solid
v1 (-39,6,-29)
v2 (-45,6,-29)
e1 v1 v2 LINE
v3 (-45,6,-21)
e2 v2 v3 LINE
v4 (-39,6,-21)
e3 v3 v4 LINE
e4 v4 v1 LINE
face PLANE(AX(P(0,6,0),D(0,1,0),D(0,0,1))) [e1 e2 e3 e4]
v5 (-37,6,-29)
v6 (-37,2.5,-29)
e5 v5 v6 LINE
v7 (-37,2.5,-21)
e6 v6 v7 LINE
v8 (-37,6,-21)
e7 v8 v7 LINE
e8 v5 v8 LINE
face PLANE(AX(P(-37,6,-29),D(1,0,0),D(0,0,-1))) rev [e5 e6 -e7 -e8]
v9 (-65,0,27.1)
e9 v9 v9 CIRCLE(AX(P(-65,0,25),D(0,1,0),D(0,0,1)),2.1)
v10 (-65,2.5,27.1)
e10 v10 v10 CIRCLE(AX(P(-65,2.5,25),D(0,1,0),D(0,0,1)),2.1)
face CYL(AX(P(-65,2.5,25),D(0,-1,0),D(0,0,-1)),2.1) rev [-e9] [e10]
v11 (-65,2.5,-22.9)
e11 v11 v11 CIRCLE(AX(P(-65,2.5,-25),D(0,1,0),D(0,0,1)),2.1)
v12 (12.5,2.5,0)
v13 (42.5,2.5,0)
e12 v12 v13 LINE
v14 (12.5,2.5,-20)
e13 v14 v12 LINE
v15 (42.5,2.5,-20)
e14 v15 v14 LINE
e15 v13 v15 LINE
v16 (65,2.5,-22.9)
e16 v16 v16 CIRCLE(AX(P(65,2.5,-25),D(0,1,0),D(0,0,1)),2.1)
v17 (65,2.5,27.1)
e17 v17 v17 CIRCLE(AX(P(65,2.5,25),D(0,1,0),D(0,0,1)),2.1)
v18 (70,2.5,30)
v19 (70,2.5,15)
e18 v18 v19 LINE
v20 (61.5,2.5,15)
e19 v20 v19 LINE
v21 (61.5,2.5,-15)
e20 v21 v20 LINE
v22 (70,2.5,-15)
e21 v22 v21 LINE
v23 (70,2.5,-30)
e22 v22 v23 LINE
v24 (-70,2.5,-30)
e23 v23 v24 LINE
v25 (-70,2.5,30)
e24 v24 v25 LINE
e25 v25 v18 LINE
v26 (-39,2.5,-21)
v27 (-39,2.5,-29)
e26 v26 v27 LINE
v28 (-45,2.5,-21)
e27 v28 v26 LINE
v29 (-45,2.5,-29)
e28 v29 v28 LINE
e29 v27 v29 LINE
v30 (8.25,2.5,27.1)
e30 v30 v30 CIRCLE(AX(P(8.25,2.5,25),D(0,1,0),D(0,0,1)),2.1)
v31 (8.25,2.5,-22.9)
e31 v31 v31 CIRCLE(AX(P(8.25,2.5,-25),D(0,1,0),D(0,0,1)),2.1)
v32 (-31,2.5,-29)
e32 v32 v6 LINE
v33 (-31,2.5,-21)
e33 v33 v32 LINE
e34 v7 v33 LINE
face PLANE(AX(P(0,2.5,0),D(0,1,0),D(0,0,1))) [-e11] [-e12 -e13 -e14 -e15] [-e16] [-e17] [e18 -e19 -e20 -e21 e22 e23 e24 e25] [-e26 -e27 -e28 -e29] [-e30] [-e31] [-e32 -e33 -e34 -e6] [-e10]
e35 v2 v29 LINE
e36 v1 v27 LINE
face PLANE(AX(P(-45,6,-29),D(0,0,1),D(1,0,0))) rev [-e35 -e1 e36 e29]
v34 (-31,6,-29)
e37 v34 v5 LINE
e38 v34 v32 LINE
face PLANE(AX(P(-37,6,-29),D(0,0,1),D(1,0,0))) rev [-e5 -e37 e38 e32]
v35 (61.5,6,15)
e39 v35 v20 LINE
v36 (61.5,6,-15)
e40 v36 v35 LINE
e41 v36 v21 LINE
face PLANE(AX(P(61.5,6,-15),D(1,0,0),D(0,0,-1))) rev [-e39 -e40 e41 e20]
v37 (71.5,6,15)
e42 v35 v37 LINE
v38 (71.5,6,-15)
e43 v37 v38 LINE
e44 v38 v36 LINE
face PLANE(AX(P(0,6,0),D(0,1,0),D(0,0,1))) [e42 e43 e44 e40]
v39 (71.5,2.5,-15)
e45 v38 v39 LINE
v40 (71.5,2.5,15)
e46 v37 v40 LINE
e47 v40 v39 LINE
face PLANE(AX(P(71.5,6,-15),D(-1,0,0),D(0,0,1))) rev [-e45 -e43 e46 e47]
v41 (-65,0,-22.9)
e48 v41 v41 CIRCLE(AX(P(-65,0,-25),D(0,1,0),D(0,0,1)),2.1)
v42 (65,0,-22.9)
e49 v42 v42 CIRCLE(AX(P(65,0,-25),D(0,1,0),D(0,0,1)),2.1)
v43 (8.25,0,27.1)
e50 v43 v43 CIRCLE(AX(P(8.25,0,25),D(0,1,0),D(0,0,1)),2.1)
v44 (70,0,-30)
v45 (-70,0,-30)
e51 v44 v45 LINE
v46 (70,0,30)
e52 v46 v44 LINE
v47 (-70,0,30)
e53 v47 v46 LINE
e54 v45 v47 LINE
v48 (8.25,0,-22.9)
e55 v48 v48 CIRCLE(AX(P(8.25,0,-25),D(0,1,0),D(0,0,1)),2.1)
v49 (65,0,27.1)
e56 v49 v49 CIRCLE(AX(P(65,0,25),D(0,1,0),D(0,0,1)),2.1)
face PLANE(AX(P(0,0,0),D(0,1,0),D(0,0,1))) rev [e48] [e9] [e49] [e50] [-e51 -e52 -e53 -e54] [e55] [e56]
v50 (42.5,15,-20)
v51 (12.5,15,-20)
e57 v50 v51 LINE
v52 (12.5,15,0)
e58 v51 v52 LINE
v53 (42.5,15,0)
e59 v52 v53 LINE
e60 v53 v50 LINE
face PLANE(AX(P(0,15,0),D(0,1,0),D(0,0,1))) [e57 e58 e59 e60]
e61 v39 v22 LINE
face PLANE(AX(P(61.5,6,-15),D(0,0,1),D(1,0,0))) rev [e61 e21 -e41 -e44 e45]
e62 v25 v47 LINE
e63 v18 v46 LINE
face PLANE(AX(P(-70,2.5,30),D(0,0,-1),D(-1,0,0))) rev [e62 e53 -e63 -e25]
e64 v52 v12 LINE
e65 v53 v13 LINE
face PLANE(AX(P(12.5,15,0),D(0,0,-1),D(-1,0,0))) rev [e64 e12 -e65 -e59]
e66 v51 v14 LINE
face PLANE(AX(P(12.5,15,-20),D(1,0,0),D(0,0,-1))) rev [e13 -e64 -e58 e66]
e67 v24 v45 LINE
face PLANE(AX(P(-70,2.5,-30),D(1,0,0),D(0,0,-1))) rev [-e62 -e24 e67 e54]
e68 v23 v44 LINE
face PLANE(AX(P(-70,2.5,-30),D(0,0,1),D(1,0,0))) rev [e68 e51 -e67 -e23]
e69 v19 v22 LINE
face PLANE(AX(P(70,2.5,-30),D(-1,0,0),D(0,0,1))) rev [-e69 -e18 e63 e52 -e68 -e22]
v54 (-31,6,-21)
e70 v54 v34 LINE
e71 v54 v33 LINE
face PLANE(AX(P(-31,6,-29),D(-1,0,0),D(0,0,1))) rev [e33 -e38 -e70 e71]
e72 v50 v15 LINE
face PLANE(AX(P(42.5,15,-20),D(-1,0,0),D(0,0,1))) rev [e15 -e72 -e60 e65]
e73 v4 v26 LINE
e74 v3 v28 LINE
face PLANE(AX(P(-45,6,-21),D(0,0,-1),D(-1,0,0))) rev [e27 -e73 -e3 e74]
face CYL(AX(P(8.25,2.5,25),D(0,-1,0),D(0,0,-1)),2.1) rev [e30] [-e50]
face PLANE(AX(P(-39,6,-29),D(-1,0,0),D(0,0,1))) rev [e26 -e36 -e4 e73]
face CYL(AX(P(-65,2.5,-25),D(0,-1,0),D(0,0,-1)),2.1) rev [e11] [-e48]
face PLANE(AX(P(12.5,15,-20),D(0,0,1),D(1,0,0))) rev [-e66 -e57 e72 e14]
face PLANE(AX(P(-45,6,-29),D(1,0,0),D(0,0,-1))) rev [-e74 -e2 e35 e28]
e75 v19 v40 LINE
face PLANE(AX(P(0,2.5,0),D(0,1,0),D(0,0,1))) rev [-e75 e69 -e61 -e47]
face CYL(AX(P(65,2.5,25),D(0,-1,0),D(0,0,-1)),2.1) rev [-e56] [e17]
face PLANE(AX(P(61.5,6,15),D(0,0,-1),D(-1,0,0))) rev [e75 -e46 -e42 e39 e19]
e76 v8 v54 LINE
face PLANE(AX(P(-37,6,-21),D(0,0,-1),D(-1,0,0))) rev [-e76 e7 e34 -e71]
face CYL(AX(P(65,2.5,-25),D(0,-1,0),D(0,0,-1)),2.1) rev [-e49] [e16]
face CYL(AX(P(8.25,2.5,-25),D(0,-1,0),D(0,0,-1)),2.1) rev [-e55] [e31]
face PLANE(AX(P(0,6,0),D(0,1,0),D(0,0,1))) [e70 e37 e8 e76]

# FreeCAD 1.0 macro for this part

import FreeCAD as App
import Part
import Sketcher
from FreeCAD import Vector
Q = App.Units.Quantity

doc = App.newDocument("Part")
body = doc.addObject("PartDesign::Body", "Body")

sketch1 = body.newObject("Sketcher::SketchObject", "Sketch")
sketch1.AttachmentSupport = (doc.getObject("XZ_Plane"), [""])
sketch1.MapMode = "FlatFace"
sketch1.addGeometry(Part.LineSegment(Vector(-70, -30, 0), Vector(-70, 30, 0)), False)
sketch1.addGeometry(Part.LineSegment(Vector(-70, 30, 0), Vector(70, 30, 0)), False)
sketch1.addGeometry(Part.LineSegment(Vector(70, 30, 0), Vector(70, -30, 0)), False)
sketch1.addGeometry(Part.LineSegment(Vector(70, -30, 0), Vector(-70, -30, 0)), False)
sketch1.addGeometry(Part.Circle(Vector(-65, 25, 0), Vector(0, 0, 1), 2.1), False)
sketch1.addGeometry(Part.Circle(Vector(8.25, 25, 0), Vector(0, 0, 1), 2.1), False)
sketch1.addGeometry(Part.Circle(Vector(65, 25, 0), Vector(0, 0, 1), 2.1), False)
sketch1.addGeometry(Part.Circle(Vector(-65, -25, 0), Vector(0, 0, 1), 2.1), False)
sketch1.addGeometry(Part.Circle(Vector(8.25, -25, 0), Vector(0, 0, 1), 2.1), False)
sketch1.addGeometry(Part.Circle(Vector(65, -25, 0), Vector(0, 0, 1), 2.1), False)
sketch1.addConstraint(Sketcher.Constraint("Coincident", 0, 2, 1, 1))
sketch1.addConstraint(Sketcher.Constraint("Coincident", 1, 2, 2, 1))
sketch1.addConstraint(Sketcher.Constraint("Coincident", 2, 2, 3, 1))
sketch1.addConstraint(Sketcher.Constraint("Coincident", 3, 2, 0, 1))
sketch1.addConstraint(Sketcher.Constraint("Vertical", 0))
sketch1.addConstraint(Sketcher.Constraint("Horizontal", 1))
sketch1.addConstraint(Sketcher.Constraint("Vertical", 2))
sketch1.addConstraint(Sketcher.Constraint("Horizontal", 3))
sketch1.addConstraint(Sketcher.Constraint("Equal", 4, 5))
sketch1.addConstraint(Sketcher.Constraint("Equal", 5, 6))
sketch1.addConstraint(Sketcher.Constraint("Equal", 6, 7))
sketch1.addConstraint(Sketcher.Constraint("Equal", 7, 8))
sketch1.addConstraint(Sketcher.Constraint("Equal", 8, 9))
sketch1.addConstraint(Sketcher.Constraint("Symmetric", 6, 3, 7, 3, -1, 1))
sketch1.addConstraint(Sketcher.Constraint("Symmetric", 4, 3, 9, 3, -1, 1))
sketch1.addConstraint(Sketcher.Constraint("Symmetric", 0, 2, 2, 2, -1, 1))
sketch1.addConstraint(Sketcher.Constraint("Symmetric", 4, 3, 6, 3, -2))
sketch1.addConstraint(Sketcher.Constraint("Symmetric", 5, 3, 8, 3, -1))
sketch1.addConstraint(Sketcher.Constraint("Horizontal", 4, 3, 5, 3))
sketch1.addConstraint(Sketcher.Constraint("Diameter", 4, Q("4.2 mm")))
sketch1.addConstraint(Sketcher.Constraint("DistanceX", 1, 1, 1, 2, Q("140 mm")))
sketch1.addConstraint(Sketcher.Constraint("DistanceY", 0, 1, 0, 2, Q("60 mm")))
sketch1.addConstraint(Sketcher.Constraint("DistanceX", 4, 3, -1, 1, Q("65 mm")))
sketch1.addConstraint(Sketcher.Constraint("DistanceY", -1, 1, 4, 3, Q("25 mm")))
sketch1.addConstraint(Sketcher.Constraint("DistanceX", -1, 1, 5, 3, Q("8.25 mm")))
pad1 = body.newObject("PartDesign::Pad", "Pad")
pad1.Profile = sketch1
pad1.Length = 2.5
pad1.Reversed = True

sketch2 = body.newObject("Sketcher::SketchObject", "Sketch001")
sketch2.AttachmentSupport = (doc.getObject("XZ_Plane"), [""])
sketch2.MapMode = "FlatFace"
sketch2.AttachmentOffset = App.Placement(Vector(0, 0, -2.5), App.Rotation())
sketch2.addGeometry(Part.LineSegment(Vector(-45, -29, 0), Vector(-45, -21, 0)), False)
sketch2.addGeometry(Part.LineSegment(Vector(-45, -21, 0), Vector(-39, -21, 0)), False)
sketch2.addGeometry(Part.LineSegment(Vector(-39, -21, 0), Vector(-39, -29, 0)), False)
sketch2.addGeometry(Part.LineSegment(Vector(-39, -29, 0), Vector(-45, -29, 0)), False)
sketch2.addGeometry(Part.LineSegment(Vector(-37, -29, 0), Vector(-37, -21, 0)), False)
sketch2.addGeometry(Part.LineSegment(Vector(-37, -21, 0), Vector(-31, -21, 0)), False)
sketch2.addGeometry(Part.LineSegment(Vector(-31, -21, 0), Vector(-31, -29, 0)), False)
sketch2.addGeometry(Part.LineSegment(Vector(-31, -29, 0), Vector(-37, -29, 0)), False)
sketch2.addGeometry(Part.LineSegment(Vector(61.5, -15, 0), Vector(61.5, 15, 0)), False)
sketch2.addGeometry(Part.LineSegment(Vector(61.5, 15, 0), Vector(71.5, 15, 0)), False)
sketch2.addGeometry(Part.LineSegment(Vector(71.5, 15, 0), Vector(71.5, -15, 0)), False)
sketch2.addGeometry(Part.LineSegment(Vector(71.5, -15, 0), Vector(61.5, -15, 0)), False)
sketch2.addConstraint(Sketcher.Constraint("Coincident", 0, 2, 1, 1))
sketch2.addConstraint(Sketcher.Constraint("Coincident", 1, 2, 2, 1))
sketch2.addConstraint(Sketcher.Constraint("Coincident", 2, 2, 3, 1))
sketch2.addConstraint(Sketcher.Constraint("Coincident", 3, 2, 0, 1))
sketch2.addConstraint(Sketcher.Constraint("Coincident", 4, 2, 5, 1))
sketch2.addConstraint(Sketcher.Constraint("Coincident", 5, 2, 6, 1))
sketch2.addConstraint(Sketcher.Constraint("Coincident", 6, 2, 7, 1))
sketch2.addConstraint(Sketcher.Constraint("Coincident", 7, 2, 4, 1))
sketch2.addConstraint(Sketcher.Constraint("Coincident", 8, 2, 9, 1))
sketch2.addConstraint(Sketcher.Constraint("Coincident", 9, 2, 10, 1))
sketch2.addConstraint(Sketcher.Constraint("Coincident", 10, 2, 11, 1))
sketch2.addConstraint(Sketcher.Constraint("Coincident", 11, 2, 8, 1))
sketch2.addConstraint(Sketcher.Constraint("Vertical", 0))
sketch2.addConstraint(Sketcher.Constraint("Horizontal", 1))
sketch2.addConstraint(Sketcher.Constraint("Vertical", 2))
sketch2.addConstraint(Sketcher.Constraint("Horizontal", 3))
sketch2.addConstraint(Sketcher.Constraint("Vertical", 4))
sketch2.addConstraint(Sketcher.Constraint("Horizontal", 5))
sketch2.addConstraint(Sketcher.Constraint("Vertical", 6))
sketch2.addConstraint(Sketcher.Constraint("Horizontal", 7))
sketch2.addConstraint(Sketcher.Constraint("Vertical", 8))
sketch2.addConstraint(Sketcher.Constraint("Horizontal", 9))
sketch2.addConstraint(Sketcher.Constraint("Vertical", 10))
sketch2.addConstraint(Sketcher.Constraint("Horizontal", 11))
sketch2.addConstraint(Sketcher.Constraint("Horizontal", 1, 2, 4, 2))
sketch2.addConstraint(Sketcher.Constraint("Horizontal", 3, 2, 6, 2))
sketch2.addConstraint(Sketcher.Constraint("Equal", 3, 5))
sketch2.addConstraint(Sketcher.Constraint("DistanceX", 1, 1, 1, 2, Q("6 mm")))
sketch2.addConstraint(Sketcher.Constraint("DistanceX", 9, 1, 9, 2, Q("10 mm")))
sketch2.addConstraint(Sketcher.Constraint("DistanceY", 0, 1, 0, 2, Q("8 mm")))
sketch2.addConstraint(Sketcher.Constraint("DistanceY", 8, 1, 8, 2, Q("30 mm")))
sketch2.addConstraint(Sketcher.Constraint("DistanceX", 0, 2, -1, 1, Q("45 mm")))
sketch2.addConstraint(Sketcher.Constraint("DistanceY", 0, 2, -1, 1, Q("21 mm")))
sketch2.addConstraint(Sketcher.Constraint("DistanceX", 4, 2, -1, 1, Q("37 mm")))
sketch2.addConstraint(Sketcher.Constraint("DistanceY", -1, 1, 8, 2, Q("15 mm")))
sketch2.addConstraint(Sketcher.Constraint("DistanceX", -1, 1, 8, 2, Q("61.5 mm")))
pad2 = body.newObject("PartDesign::Pad", "Pad001")
pad2.Profile = sketch2
pad2.Length = 3.5
pad2.Reversed = True

sketch3 = body.newObject("Sketcher::SketchObject", "Sketch002")
sketch3.AttachmentSupport = (doc.getObject("XZ_Plane"), [""])
sketch3.MapMode = "FlatFace"
sketch3.AttachmentOffset = App.Placement(Vector(0, 0, -2.5), App.Rotation())
sketch3.addGeometry(Part.LineSegment(Vector(12.5, -20, 0), Vector(12.5, 0, 0)), False)
sketch3.addGeometry(Part.LineSegment(Vector(12.5, 0, 0), Vector(42.5, 0, 0)), False)
sketch3.addGeometry(Part.LineSegment(Vector(42.5, 0, 0), Vector(42.5, -20, 0)), False)
sketch3.addGeometry(Part.LineSegment(Vector(42.5, -20, 0), Vector(12.5, -20, 0)), False)
sketch3.addConstraint(Sketcher.Constraint("Coincident", 0, 2, 1, 1))
sketch3.addConstraint(Sketcher.Constraint("Coincident", 1, 2, 2, 1))
sketch3.addConstraint(Sketcher.Constraint("Coincident", 2, 2, 3, 1))
sketch3.addConstraint(Sketcher.Constraint("Coincident", 3, 2, 0, 1))
sketch3.addConstraint(Sketcher.Constraint("Vertical", 0))
sketch3.addConstraint(Sketcher.Constraint("Horizontal", 1))
sketch3.addConstraint(Sketcher.Constraint("Vertical", 2))
sketch3.addConstraint(Sketcher.Constraint("Horizontal", 3))
sketch3.addConstraint(Sketcher.Constraint("PointOnObject", 0, 2, -1))
sketch3.addConstraint(Sketcher.Constraint("DistanceX", 1, 1, 1, 2, Q("30 mm")))
sketch3.addConstraint(Sketcher.Constraint("DistanceY", 0, 1, 0, 2, Q("20 mm")))
sketch3.addConstraint(Sketcher.Constraint("DistanceX", -1, 1, 0, 2, Q("12.5 mm")))
pad3 = body.newObject("PartDesign::Pad", "Pad002")
pad3.Profile = sketch3
pad3.Length = 12.5
pad3.Reversed = True

doc.recompute()
